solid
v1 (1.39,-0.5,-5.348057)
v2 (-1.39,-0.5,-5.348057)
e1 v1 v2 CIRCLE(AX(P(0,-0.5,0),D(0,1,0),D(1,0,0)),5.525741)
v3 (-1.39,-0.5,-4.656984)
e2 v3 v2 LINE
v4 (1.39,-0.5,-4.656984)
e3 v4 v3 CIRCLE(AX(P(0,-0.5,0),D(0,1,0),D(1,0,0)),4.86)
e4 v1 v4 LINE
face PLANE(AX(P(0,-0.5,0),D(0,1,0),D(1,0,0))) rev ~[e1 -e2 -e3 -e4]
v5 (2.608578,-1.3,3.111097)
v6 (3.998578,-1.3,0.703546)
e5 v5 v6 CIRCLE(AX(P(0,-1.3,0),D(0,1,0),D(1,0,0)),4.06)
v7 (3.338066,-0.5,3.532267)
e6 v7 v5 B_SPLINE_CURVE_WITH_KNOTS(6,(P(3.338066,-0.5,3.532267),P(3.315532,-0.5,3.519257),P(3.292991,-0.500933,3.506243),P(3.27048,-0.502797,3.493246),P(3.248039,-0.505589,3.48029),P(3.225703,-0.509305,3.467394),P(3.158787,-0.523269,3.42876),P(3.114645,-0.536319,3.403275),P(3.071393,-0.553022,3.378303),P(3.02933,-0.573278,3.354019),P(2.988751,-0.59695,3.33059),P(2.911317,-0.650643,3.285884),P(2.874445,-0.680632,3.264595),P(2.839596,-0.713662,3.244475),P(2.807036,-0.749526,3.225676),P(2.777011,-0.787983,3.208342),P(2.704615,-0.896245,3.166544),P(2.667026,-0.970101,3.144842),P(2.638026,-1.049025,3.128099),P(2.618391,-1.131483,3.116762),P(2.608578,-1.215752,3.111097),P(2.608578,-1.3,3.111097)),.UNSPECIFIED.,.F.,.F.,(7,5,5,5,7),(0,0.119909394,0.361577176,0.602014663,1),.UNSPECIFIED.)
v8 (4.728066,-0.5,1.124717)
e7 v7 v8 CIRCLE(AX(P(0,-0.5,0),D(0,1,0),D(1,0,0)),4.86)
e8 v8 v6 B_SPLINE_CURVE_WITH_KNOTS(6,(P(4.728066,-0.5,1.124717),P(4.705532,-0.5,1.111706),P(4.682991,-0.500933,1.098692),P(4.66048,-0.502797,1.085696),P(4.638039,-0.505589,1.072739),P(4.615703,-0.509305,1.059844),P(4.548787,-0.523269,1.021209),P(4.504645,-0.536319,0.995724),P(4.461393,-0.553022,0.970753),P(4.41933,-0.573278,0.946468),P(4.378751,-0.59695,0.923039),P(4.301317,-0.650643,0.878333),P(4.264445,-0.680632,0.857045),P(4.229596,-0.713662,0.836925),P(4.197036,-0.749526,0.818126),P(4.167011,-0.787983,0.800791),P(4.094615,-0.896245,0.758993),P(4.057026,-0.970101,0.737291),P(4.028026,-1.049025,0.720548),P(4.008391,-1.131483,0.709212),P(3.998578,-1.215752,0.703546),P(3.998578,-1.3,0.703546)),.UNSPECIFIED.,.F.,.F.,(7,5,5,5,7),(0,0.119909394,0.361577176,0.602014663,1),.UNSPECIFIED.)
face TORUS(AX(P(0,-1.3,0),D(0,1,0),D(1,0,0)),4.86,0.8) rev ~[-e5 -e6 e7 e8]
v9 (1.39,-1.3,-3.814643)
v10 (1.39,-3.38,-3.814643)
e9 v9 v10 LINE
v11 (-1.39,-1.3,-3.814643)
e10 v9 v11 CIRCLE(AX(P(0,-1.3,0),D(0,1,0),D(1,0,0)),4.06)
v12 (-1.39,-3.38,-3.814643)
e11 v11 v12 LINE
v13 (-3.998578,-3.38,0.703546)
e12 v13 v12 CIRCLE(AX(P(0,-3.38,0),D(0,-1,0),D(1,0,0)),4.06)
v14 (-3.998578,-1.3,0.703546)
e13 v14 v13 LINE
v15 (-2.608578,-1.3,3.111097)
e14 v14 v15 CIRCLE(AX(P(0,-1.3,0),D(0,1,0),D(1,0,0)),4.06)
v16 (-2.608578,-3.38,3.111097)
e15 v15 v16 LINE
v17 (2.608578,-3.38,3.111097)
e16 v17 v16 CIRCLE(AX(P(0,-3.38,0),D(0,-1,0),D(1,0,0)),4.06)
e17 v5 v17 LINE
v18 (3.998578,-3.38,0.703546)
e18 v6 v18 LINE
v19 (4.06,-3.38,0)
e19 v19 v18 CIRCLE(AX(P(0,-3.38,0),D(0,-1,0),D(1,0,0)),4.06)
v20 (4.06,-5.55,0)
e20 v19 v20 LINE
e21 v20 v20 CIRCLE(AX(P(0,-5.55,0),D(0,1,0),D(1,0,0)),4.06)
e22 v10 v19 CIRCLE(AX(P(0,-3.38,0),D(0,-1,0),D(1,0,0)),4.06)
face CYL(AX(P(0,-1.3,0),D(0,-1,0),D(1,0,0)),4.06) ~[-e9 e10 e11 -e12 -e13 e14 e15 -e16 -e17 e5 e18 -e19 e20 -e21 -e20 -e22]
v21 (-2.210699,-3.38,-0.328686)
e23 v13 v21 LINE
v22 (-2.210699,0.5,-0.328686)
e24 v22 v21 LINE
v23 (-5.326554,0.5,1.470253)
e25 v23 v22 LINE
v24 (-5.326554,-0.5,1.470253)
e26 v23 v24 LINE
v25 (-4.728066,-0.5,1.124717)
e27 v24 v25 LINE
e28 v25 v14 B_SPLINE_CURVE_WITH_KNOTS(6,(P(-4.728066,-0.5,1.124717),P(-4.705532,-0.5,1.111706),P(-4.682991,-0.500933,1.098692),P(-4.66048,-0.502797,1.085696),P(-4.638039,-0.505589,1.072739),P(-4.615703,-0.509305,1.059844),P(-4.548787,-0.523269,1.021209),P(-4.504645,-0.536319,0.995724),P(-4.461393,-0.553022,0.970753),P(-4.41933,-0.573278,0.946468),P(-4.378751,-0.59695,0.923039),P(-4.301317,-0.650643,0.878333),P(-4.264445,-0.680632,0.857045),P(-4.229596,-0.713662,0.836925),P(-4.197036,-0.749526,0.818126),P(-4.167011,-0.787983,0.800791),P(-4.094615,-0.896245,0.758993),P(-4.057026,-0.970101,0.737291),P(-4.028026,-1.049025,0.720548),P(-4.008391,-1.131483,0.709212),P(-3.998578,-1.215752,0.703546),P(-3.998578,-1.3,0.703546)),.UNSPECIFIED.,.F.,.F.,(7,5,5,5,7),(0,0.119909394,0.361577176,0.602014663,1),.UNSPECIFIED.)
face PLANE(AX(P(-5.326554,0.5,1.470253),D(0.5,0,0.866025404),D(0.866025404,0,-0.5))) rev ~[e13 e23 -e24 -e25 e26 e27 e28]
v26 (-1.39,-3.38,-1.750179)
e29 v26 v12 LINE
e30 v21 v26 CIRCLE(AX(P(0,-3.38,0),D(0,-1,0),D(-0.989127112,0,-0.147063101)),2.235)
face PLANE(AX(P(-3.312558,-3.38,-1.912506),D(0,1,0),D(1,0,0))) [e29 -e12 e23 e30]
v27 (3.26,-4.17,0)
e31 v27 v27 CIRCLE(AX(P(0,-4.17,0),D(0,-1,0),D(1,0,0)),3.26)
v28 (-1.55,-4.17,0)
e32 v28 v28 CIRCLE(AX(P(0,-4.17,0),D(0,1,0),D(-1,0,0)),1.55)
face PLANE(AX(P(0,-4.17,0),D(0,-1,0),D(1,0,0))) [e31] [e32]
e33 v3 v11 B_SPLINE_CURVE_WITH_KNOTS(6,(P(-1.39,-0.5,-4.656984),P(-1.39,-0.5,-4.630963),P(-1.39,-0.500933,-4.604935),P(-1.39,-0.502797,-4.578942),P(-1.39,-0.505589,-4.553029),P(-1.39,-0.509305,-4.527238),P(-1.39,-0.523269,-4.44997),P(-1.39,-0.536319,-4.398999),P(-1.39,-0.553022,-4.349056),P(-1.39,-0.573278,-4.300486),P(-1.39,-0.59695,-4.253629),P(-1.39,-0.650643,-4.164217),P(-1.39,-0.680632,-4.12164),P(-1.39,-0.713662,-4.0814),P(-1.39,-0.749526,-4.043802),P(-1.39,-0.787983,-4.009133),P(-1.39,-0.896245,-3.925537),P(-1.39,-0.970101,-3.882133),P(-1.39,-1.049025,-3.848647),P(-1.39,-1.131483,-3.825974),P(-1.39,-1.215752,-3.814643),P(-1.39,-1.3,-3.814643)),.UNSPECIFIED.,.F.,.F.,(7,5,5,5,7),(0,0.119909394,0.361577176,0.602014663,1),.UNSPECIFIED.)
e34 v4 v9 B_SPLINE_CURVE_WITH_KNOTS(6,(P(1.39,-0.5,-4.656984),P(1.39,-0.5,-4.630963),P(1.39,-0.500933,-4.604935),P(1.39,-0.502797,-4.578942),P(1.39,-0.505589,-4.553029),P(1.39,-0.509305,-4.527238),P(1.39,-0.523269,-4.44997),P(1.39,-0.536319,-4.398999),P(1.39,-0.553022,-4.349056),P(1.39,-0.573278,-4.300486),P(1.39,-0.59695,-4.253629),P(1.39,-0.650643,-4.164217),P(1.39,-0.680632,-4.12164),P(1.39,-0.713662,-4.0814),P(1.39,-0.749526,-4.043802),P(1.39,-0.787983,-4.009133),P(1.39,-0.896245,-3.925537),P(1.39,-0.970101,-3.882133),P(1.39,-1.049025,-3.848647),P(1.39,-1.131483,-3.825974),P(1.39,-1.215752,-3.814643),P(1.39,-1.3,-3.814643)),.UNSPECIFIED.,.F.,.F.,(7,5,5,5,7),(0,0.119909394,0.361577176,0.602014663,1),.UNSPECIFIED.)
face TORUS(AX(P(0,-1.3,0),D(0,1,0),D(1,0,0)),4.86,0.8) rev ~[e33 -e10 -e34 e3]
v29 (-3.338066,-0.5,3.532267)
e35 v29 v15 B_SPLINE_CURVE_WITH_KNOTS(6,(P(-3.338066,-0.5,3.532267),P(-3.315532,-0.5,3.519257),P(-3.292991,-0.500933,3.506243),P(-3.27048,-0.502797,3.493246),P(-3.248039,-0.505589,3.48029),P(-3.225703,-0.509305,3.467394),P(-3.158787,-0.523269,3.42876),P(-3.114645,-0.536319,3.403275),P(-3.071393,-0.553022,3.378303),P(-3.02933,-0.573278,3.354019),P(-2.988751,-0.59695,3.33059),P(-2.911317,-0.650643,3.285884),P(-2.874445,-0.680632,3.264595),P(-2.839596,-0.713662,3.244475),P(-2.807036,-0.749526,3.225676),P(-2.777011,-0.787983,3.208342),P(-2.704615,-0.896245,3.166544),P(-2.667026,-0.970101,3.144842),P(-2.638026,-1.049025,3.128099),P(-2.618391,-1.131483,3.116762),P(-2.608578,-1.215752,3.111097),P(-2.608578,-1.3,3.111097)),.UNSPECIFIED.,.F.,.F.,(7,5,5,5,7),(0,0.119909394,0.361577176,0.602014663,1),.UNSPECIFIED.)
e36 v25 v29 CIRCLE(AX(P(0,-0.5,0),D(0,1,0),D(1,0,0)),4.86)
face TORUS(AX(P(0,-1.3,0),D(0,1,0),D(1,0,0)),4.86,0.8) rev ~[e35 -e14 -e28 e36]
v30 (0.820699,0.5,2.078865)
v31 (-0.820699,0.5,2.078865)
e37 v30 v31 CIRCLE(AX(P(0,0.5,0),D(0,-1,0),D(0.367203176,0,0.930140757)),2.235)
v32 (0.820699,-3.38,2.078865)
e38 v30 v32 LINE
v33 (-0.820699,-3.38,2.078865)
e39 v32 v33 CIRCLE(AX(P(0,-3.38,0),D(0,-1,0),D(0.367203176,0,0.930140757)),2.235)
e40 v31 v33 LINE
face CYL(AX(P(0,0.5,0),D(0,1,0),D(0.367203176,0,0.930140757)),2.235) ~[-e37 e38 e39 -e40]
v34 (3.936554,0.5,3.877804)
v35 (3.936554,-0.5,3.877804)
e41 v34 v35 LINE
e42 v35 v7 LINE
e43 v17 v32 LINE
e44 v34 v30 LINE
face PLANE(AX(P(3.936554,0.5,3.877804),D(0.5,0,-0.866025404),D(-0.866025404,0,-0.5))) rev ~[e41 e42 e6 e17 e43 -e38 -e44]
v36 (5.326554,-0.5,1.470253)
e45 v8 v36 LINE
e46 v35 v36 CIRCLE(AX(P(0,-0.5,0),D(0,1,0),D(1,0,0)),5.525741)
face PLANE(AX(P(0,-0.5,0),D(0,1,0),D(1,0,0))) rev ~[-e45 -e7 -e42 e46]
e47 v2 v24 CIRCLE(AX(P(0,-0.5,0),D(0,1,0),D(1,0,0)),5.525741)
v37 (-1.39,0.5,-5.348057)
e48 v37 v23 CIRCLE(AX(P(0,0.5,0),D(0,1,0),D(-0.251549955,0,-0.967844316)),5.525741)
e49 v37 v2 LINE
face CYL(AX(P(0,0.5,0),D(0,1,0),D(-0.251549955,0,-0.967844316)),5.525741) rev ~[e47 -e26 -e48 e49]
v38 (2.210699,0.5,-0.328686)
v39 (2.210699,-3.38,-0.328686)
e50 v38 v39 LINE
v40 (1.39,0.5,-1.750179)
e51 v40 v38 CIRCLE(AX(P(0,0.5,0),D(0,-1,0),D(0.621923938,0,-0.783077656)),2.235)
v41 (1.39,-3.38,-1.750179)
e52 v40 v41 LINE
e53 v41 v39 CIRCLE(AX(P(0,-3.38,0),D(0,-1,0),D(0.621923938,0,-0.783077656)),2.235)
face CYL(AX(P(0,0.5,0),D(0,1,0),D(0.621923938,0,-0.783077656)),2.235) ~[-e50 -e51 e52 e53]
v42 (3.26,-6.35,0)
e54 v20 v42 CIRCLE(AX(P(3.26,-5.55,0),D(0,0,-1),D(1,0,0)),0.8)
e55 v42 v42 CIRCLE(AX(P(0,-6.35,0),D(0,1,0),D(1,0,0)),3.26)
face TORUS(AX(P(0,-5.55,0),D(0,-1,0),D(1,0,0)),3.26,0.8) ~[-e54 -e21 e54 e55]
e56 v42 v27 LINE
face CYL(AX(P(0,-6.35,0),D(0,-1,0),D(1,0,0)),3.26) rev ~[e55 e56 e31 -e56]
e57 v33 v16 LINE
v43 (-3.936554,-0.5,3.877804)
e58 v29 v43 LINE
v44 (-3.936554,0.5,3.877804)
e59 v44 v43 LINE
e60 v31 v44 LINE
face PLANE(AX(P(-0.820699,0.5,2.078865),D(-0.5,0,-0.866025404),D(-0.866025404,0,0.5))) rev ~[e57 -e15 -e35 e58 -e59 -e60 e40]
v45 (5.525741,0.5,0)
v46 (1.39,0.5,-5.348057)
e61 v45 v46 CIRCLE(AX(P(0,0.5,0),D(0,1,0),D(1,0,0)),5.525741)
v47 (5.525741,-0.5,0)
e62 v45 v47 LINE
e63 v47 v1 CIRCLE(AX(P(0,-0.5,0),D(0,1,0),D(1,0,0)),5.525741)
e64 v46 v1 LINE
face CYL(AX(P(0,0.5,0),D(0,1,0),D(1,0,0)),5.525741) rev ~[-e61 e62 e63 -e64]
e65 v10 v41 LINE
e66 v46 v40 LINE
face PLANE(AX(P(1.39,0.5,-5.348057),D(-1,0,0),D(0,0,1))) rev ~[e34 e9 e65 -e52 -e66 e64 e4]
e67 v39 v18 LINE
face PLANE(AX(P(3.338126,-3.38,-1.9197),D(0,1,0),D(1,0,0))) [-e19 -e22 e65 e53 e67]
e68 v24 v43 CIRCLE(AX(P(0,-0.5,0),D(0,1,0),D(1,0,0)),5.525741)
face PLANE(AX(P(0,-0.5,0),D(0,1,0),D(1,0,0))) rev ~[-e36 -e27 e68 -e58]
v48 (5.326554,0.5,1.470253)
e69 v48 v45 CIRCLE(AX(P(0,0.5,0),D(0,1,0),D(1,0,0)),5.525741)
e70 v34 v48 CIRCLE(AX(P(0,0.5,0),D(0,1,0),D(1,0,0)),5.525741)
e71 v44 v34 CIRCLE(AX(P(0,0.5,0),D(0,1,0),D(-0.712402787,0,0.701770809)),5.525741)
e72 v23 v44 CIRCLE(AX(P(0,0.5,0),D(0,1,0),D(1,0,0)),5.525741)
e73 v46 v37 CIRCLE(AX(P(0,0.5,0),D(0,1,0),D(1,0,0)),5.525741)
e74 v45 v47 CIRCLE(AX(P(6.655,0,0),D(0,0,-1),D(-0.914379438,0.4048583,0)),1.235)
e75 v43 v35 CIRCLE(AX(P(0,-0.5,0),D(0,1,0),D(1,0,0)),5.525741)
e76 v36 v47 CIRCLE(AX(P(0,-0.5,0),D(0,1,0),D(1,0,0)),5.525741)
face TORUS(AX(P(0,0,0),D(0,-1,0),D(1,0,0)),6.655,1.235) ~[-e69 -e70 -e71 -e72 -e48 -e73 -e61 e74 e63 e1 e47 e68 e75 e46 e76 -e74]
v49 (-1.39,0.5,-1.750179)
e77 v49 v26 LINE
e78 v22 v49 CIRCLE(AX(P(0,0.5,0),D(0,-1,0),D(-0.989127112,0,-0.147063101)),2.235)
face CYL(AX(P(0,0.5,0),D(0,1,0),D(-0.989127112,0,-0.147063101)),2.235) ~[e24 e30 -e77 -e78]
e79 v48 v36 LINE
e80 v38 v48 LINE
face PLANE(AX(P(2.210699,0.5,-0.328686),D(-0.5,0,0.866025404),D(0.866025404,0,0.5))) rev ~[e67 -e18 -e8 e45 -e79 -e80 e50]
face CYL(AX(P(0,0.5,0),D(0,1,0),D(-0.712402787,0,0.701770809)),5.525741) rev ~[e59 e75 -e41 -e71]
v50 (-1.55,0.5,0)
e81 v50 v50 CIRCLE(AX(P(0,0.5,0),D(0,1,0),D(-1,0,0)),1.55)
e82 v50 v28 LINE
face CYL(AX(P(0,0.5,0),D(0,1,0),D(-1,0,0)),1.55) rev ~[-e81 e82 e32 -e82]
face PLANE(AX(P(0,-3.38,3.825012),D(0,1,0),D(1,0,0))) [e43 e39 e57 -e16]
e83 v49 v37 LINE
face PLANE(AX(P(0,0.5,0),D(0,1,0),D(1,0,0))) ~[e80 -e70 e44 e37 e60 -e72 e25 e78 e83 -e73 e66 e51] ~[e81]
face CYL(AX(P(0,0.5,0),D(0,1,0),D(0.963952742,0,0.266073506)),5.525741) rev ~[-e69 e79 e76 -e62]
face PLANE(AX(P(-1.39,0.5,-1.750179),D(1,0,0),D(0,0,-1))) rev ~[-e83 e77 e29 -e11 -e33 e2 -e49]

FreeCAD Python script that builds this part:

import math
import FreeCAD as App
import Part
import Sketcher
Q = App.Units.Quantity

doc = App.newDocument("Part")
body = doc.addObject("PartDesign::Body", "Body")

# Sketch on XY plane
sketch1 = body.newObject("Sketcher::SketchObject", "Sketch")
sketch1.AttachmentSupport = (doc.getObject("XY_Plane"), [""])
sketch1.MapMode = "FlatFace"
sketch1.addGeometry(Part.LineSegment(App.Vector(5.5, 0.5, 0), App.Vector(0, 0.5, 0)), False)
sketch1.addGeometry(Part.LineSegment(App.Vector(0, 0.5, 0), App.Vector(0, -6.3, 0)), False)
sketch1.addGeometry(Part.LineSegment(App.Vector(0, -6.3, 0), App.Vector(3.3, -6.3, 0)), False)
sketch1.addGeometry(Part.ArcOfCircle(Part.Circle(App.Vector(3.3, -5.5, 0), App.Vector(0, 0, 1), 0.8), math.radians(-90), math.radians(0)), False)
sketch1.addGeometry(Part.LineSegment(App.Vector(4.1, -5.5, 0), App.Vector(4.1, -1.3, 0)), False)
sketch1.addGeometry(Part.ArcOfCircle(Part.Circle(App.Vector(4.9, -1.3, 0), App.Vector(0, 0, 1), 0.8), math.radians(90), math.radians(180)), False)
sketch1.addGeometry(Part.LineSegment(App.Vector(4.9, -0.5, 0), App.Vector(5.5, -0.5, 0)), False)
sketch1.addGeometry(Part.ArcOfCircle(Part.Circle(App.Vector(6.7, 0, 0), App.Vector(0, 0, 1), 1.2), math.radians(-156), math.radians(156)), False)
sketch1.addConstraint(Sketcher.Constraint("Coincident", 0, 2, 1, 1))
sketch1.addConstraint(Sketcher.Constraint("Coincident", 1, 2, 2, 1))
sketch1.addConstraint(Sketcher.Constraint("Tangent", 2, 2, 3, 1))
sketch1.addConstraint(Sketcher.Constraint("Tangent", 3, 2, 4, 1))
sketch1.addConstraint(Sketcher.Constraint("Tangent", 4, 2, 5, 2))
sketch1.addConstraint(Sketcher.Constraint("Tangent", 5, 1, 6, 1))
sketch1.addConstraint(Sketcher.Constraint("Coincident", 6, 2, 7, 1))
sketch1.addConstraint(Sketcher.Constraint("Coincident", 7, 2, 0, 1))
sketch1.addConstraint(Sketcher.Constraint("Horizontal", 0))
sketch1.addConstraint(Sketcher.Constraint("Vertical", 1))
sketch1.addConstraint(Sketcher.Constraint("Horizontal", 2))
sketch1.addConstraint(Sketcher.Constraint("Vertical", 4))
sketch1.addConstraint(Sketcher.Constraint("Horizontal", 6))
sketch1.addConstraint(Sketcher.Constraint("Equal", 3, 5))
sketch1.addConstraint(Sketcher.Constraint("Symmetric", 6, 2, 7, 2, -1))
sketch1.addConstraint(Sketcher.Constraint("PointOnObject", 0, 2, -2))
sketch1.addConstraint(Sketcher.Constraint("Radius", 3, Q("0.8 mm")))
sketch1.addConstraint(Sketcher.Constraint("Radius", 7, Q("1.235 mm")))
sketch1.addConstraint(Sketcher.Constraint("DistanceY", 5, 1, 0, 2, Q("1 mm")))
sketch1.addConstraint(Sketcher.Constraint("DistanceX", 2, 1, 2, 2, Q("3.26 mm")))
sketch1.addConstraint(Sketcher.Constraint("DistanceY", 1, 2, 1, 1, Q("6.85 mm")))
sketch1.addConstraint(Sketcher.Constraint("DistanceX", -1, 1, 7, 3, Q("6.655 mm")))
revolution = body.newObject("PartDesign::Revolution", "Revolution")
revolution.Profile = sketch1
revolution.ReferenceAxis = (sketch1, ["V_Axis"])
revolution.Angle = 360

# Sketch on XZ plane
sketch2 = body.newObject("Sketcher::SketchObject", "Sketch001")
sketch2.AttachmentSupport = (doc.getObject("XZ_Plane"), [""])
sketch2.MapMode = "FlatFace"
sketch2.AttachmentOffset = App.Placement(App.Vector(0, 0, -0.5), App.Rotation())
sketch2.addGeometry(Part.Circle(App.Vector(0, 0, 0), App.Vector(0, 0, 1), 1.6), False)
sketch2.addConstraint(Sketcher.Constraint("Coincident", 0, 3, -1, 1))
sketch2.addConstraint(Sketcher.Constraint("Diameter", 0, Q("3.1 mm")))
pocket1 = body.newObject("PartDesign::Pocket", "Pocket")
pocket1.Profile = sketch2
pocket1.Length = 14.87
pocket1.Reversed = True

# Sketch on XZ plane
sketch3 = body.newObject("Sketcher::SketchObject", "Sketch002")
sketch3.AttachmentSupport = (doc.getObject("XZ_Plane"), [""])
sketch3.MapMode = "FlatFace"
sketch3.AttachmentOffset = App.Placement(App.Vector(0, 0, -0.5), App.Rotation())
sketch3.addGeometry(Part.ArcOfCircle(Part.Circle(App.Vector(0, 0, 0), App.Vector(0, 0, 1), 2.2), math.radians(-172), math.radians(-128)), False)
sketch3.addGeometry(Part.LineSegment(App.Vector(-1.4, -1.8, 0), App.Vector(-1.4, -5.3, 0)), False)
sketch3.addGeometry(Part.ArcOfCircle(Part.Circle(App.Vector(0, 0, 0), App.Vector(0, 0, 1), 5.5), math.radians(165), math.radians(255)), False)
sketch3.addGeometry(Part.LineSegment(App.Vector(-5.3, 1.5, 0), App.Vector(-2.2, -0.3, 0)), False)
sketch3.addGeometry(Part.LineSegment(App.Vector(1.4, -5.3, 0), App.Vector(1.4, -1.8, 0)), False)
sketch3.addGeometry(Part.ArcOfCircle(Part.Circle(App.Vector(0, 0, 0), App.Vector(0, 0, 1), 2.2), math.radians(-52), math.radians(-8)), False)
sketch3.addGeometry(Part.LineSegment(App.Vector(2.2, -0.3, 0), App.Vector(5.3, 1.5, 0)), False)
sketch3.addGeometry(Part.ArcOfCircle(Part.Circle(App.Vector(0, 0, 0), App.Vector(0, 0, 1), 5.5), math.radians(0), math.radians(15.43)), False)
sketch3.addGeometry(Part.ArcOfCircle(Part.Circle(App.Vector(0, 0, 0), App.Vector(0, 0, 1), 5.5), math.radians(-75), math.radians(0)), False)
sketch3.addGeometry(Part.ArcOfCircle(Part.Circle(App.Vector(0, 0, 0), App.Vector(0, 0, 1), 2.2), math.radians(68), math.radians(112)), False)
sketch3.addGeometry(Part.LineSegment(App.Vector(-0.8, 2.1, 0), App.Vector(-3.9, 3.9, 0)), False)
sketch3.addGeometry(Part.ArcOfCircle(Part.Circle(App.Vector(0, 0, 0), App.Vector(0, 0, 1), 5.5), math.radians(45), math.radians(135)), False)
sketch3.addGeometry(Part.LineSegment(App.Vector(3.9, 3.9, 0), App.Vector(0.8, 2.1, 0)), False)
sketch3.addConstraint(Sketcher.Constraint("Coincident", 0, 2, 1, 1))
sketch3.addConstraint(Sketcher.Constraint("Coincident", 1, 2, 2, 2))
sketch3.addConstraint(Sketcher.Constraint("Coincident", 2, 1, 3, 1))
sketch3.addConstraint(Sketcher.Constraint("Coincident", 3, 2, 0, 1))
sketch3.addConstraint(Sketcher.Constraint("Coincident", 4, 2, 5, 1))
sketch3.addConstraint(Sketcher.Constraint("Coincident", 5, 2, 6, 1))
sketch3.addConstraint(Sketcher.Constraint("Coincident", 6, 2, 7, 2))
sketch3.addConstraint(Sketcher.Constraint("Tangent", 7, 1, 8, 2))
sketch3.addConstraint(Sketcher.Constraint("Coincident", 8, 1, 4, 1))
sketch3.addConstraint(Sketcher.Constraint("Coincident", 9, 2, 10, 1))
sketch3.addConstraint(Sketcher.Constraint("Coincident", 10, 2, 11, 2))
sketch3.addConstraint(Sketcher.Constraint("Coincident", 11, 1, 12, 1))
sketch3.addConstraint(Sketcher.Constraint("Coincident", 12, 2, 9, 1))
sketch3.addConstraint(Sketcher.Constraint("Vertical", 1))
sketch3.addConstraint(Sketcher.Constraint("Vertical", 4))
sketch3.addConstraint(Sketcher.Constraint("Coincident", 0, 3, -1, 1))
sketch3.addConstraint(Sketcher.Constraint("Coincident", 2, 3, -1, 1))
sketch3.addConstraint(Sketcher.Constraint("Coincident", 5, 3, -1, 1))
sketch3.addConstraint(Sketcher.Constraint("Coincident", 7, 3, -1, 1))
sketch3.addConstraint(Sketcher.Constraint("Coincident", 9, 3, -1, 1))
sketch3.addConstraint(Sketcher.Constraint("Coincident", 11, 3, -1, 1))
sketch3.addConstraint(Sketcher.Constraint("Equal", 0, 5))
sketch3.addConstraint(Sketcher.Constraint("Equal", 2, 7))
sketch3.addConstraint(Sketcher.Constraint("Equal", 7, 8))
sketch3.addConstraint(Sketcher.Constraint("Equal", 5, 9))
sketch3.addConstraint(Sketcher.Constraint("Equal", 8, 11))
sketch3.addConstraint(Sketcher.Constraint("PointOnObject", 7, 1, -1))
sketch3.addConstraint(Sketcher.Constraint("Parallel", 3, 10))
sketch3.addConstraint(Sketcher.Constraint("Parallel", 6, 12))
sketch3.addConstraint(Sketcher.Constraint("Horizontal", 0, 2, 4, 2))
sketch3.addConstraint(Sketcher.Constraint("Horizontal", 3, 2, 5, 2))
sketch3.addConstraint(Sketcher.Constraint("Horizontal", 2, 1, 6, 2))
sketch3.addConstraint(Sketcher.Constraint("Horizontal", 10, 2, 11, 1))
sketch3.addConstraint(Sketcher.Constraint("Equal", 6, 10))
sketch3.addConstraint(Sketcher.Constraint("Angle", 3, Q("-30 deg")))
sketch3.addConstraint(Sketcher.Constraint("Radius", 0, Q("2.235 mm")))
sketch3.addConstraint(Sketcher.Constraint("DistanceX", 0, 2, -1, 1, Q("1.39 mm")))
sketch3.addConstraint(Sketcher.Constraint("Radius", 2, Q("5.525741 mm")))
sketch3.addConstraint(Sketcher.Constraint("DistanceX", 2, 1, 10, 2, Q("1.39 mm")))
pocket2 = body.newObject("PartDesign::Pocket", "Pocket001")
pocket2.Profile = sketch3
pocket2.Length = 3.88
pocket2.Reversed = True

# Sketch on XZ plane
sketch4 = body.newObject("Sketcher::SketchObject", "Sketch003")
sketch4.AttachmentSupport = (doc.getObject("XZ_Plane"), [""])
sketch4.MapMode = "FlatFace"
sketch4.AttachmentOffset = App.Placement(App.Vector(0, 0, 6.35), App.Rotation())
sketch4.addGeometry(Part.Circle(App.Vector(0, 0, 0), App.Vector(0, 0, 1), 3.3), False)
sketch4.addConstraint(Sketcher.Constraint("Coincident", 0, 3, -1, 1))
sketch4.addConstraint(Sketcher.Constraint("Diameter", 0, Q("6.52 mm")))
pocket3 = body.newObject("PartDesign::Pocket", "Pocket002")
pocket3.Profile = sketch4
pocket3.Length = 2.18

doc.recompute()
